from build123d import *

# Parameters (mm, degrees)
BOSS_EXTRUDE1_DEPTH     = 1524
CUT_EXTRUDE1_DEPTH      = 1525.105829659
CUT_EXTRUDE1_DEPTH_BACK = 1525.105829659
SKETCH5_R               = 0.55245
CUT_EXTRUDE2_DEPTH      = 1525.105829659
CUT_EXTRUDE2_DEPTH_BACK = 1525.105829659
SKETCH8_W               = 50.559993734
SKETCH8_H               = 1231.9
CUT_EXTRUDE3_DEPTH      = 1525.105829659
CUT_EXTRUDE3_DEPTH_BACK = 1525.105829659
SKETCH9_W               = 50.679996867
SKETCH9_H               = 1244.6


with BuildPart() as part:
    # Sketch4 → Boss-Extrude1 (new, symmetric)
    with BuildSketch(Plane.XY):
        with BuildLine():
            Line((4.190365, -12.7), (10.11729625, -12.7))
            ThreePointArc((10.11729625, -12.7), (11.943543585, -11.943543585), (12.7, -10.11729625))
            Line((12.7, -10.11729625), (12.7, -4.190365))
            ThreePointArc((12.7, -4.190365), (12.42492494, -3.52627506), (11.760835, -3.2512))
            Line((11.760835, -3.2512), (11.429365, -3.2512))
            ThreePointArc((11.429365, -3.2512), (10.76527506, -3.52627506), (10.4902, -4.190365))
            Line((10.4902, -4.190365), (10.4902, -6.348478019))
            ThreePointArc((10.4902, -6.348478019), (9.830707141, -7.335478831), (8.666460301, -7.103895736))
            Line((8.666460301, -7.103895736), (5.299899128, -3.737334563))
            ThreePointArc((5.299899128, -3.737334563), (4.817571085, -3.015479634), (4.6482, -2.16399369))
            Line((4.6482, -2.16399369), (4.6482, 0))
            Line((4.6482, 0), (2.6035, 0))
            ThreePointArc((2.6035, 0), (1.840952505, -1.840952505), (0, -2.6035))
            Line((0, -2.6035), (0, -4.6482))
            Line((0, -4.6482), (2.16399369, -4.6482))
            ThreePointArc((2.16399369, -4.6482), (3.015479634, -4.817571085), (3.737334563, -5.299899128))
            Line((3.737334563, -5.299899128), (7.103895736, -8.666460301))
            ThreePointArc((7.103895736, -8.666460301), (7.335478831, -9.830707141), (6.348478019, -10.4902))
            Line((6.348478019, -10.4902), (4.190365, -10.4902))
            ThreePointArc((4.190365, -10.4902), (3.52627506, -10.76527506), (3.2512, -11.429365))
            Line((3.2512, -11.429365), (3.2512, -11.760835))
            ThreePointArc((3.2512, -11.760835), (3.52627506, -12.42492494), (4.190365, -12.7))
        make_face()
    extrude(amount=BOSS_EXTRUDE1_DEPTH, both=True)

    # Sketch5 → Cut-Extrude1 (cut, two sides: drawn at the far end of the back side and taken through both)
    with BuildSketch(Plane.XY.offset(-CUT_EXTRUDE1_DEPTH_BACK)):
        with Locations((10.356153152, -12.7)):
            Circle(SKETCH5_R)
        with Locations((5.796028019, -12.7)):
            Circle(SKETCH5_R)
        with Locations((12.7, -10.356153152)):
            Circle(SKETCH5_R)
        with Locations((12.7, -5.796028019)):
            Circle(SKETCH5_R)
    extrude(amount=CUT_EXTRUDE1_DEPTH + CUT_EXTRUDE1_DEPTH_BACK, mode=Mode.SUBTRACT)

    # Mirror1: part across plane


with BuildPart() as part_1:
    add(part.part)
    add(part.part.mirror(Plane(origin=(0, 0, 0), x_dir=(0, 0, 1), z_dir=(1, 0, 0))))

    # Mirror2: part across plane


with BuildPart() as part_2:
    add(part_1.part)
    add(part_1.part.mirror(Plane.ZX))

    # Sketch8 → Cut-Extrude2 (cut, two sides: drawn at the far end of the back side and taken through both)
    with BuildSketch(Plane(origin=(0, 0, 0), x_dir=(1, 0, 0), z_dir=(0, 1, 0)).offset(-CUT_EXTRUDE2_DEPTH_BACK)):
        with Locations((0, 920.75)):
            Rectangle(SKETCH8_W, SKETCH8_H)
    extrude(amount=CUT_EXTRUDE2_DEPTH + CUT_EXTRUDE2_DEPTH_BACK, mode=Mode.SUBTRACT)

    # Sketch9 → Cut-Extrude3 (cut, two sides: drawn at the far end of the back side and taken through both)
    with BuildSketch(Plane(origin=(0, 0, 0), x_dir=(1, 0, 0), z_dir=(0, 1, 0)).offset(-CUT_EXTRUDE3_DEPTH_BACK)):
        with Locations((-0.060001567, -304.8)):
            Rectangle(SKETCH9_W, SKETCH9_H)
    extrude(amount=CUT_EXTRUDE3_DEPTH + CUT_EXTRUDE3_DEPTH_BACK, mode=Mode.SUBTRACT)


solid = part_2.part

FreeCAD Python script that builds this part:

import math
import FreeCAD as App
import Part
import Sketcher
Q = App.Units.Quantity

doc = App.newDocument("Part")
body = doc.addObject("PartDesign::Body", "Body")

# Sketch on XY plane
sketch1 = body.newObject("Sketcher::SketchObject", "Sketch")
sketch1.AttachmentSupport = (doc.getObject("XY_Plane"), [""])
sketch1.MapMode = "FlatFace"
sketch1.addGeometry(Part.LineSegment(App.Vector(4.19, -12.7, 0), App.Vector(10.12, -12.7, 0)), False)
sketch1.addGeometry(Part.ArcOfCircle(Part.Circle(App.Vector(10.12, -10.12, 0), App.Vector(0, 0, 1), 2.58), math.radians(-90), math.radians(0)), False)
sketch1.addGeometry(Part.LineSegment(App.Vector(12.7, -10.12, 0), App.Vector(12.7, -4.19, 0)), False)
sketch1.addGeometry(Part.ArcOfCircle(Part.Circle(App.Vector(11.76, -4.19, 0), App.Vector(0, 0, 1), 0.94), math.radians(0), math.radians(90)), False)
sketch1.addGeometry(Part.LineSegment(App.Vector(11.76, -3.25, 0), App.Vector(11.43, -3.25, 0)), False)
sketch1.addGeometry(Part.ArcOfCircle(Part.Circle(App.Vector(11.43, -4.19, 0), App.Vector(0, 0, 1), 0.94), math.radians(90), math.radians(180)), False)
sketch1.addGeometry(Part.LineSegment(App.Vector(10.49, -4.19, 0), App.Vector(10.49, -6.35, 0)), False)
sketch1.addGeometry(Part.ArcOfCircle(Part.Circle(App.Vector(9.42, -6.35, 0), App.Vector(0, 0, 1), 1.07), math.radians(-135), math.radians(0)), False)
sketch1.addGeometry(Part.LineSegment(App.Vector(8.67, -7.1, 0), App.Vector(5.3, -3.74, 0)), False)
sketch1.addGeometry(Part.ArcOfCircle(Part.Circle(App.Vector(6.87, -2.16, 0), App.Vector(0, 0, 1), 2.23), math.radians(-180), math.radians(-135)), False)
sketch1.addGeometry(Part.LineSegment(App.Vector(4.65, -2.16, 0), App.Vector(4.65, 0, 0)), False)
sketch1.addGeometry(Part.LineSegment(App.Vector(4.65, 0, 0), App.Vector(2.6, 0, 0)), False)
sketch1.addGeometry(Part.ArcOfCircle(Part.Circle(App.Vector(0, 0, 0), App.Vector(0, 0, 1), 2.6), math.radians(-90), math.radians(0)), False)
sketch1.addGeometry(Part.LineSegment(App.Vector(0, -2.6, 0), App.Vector(0, -4.65, 0)), False)
sketch1.addGeometry(Part.LineSegment(App.Vector(0, -4.65, 0), App.Vector(2.16, -4.65, 0)), False)
sketch1.addGeometry(Part.ArcOfCircle(Part.Circle(App.Vector(2.16, -6.87, 0), App.Vector(0, 0, 1), 2.23), math.radians(45), math.radians(90)), False)
sketch1.addGeometry(Part.LineSegment(App.Vector(3.74, -5.3, 0), App.Vector(7.1, -8.67, 0)), False)
sketch1.addGeometry(Part.ArcOfCircle(Part.Circle(App.Vector(6.35, -9.42, 0), App.Vector(0, 0, 1), 1.07), math.radians(-90), math.radians(45)), False)
sketch1.addGeometry(Part.LineSegment(App.Vector(6.35, -10.49, 0), App.Vector(4.19, -10.49, 0)), False)
sketch1.addGeometry(Part.ArcOfCircle(Part.Circle(App.Vector(4.19, -11.43, 0), App.Vector(0, 0, 1), 0.94), math.radians(90), math.radians(180)), False)
sketch1.addGeometry(Part.LineSegment(App.Vector(3.25, -11.43, 0), App.Vector(3.25, -11.76, 0)), False)
sketch1.addGeometry(Part.ArcOfCircle(Part.Circle(App.Vector(4.19, -11.76, 0), App.Vector(0, 0, 1), 0.94), math.radians(-180), math.radians(-90)), False)
sketch1.addConstraint(Sketcher.Constraint("Tangent", 0, 2, 1, 1))
sketch1.addConstraint(Sketcher.Constraint("Tangent", 1, 2, 2, 1))
sketch1.addConstraint(Sketcher.Constraint("Tangent", 2, 2, 3, 1))
sketch1.addConstraint(Sketcher.Constraint("Tangent", 3, 2, 4, 1))
sketch1.addConstraint(Sketcher.Constraint("Tangent", 4, 2, 5, 1))
sketch1.addConstraint(Sketcher.Constraint("Tangent", 5, 2, 6, 1))
sketch1.addConstraint(Sketcher.Constraint("Tangent", 6, 2, 7, 2))
sketch1.addConstraint(Sketcher.Constraint("Tangent", 7, 1, 8, 1))
sketch1.addConstraint(Sketcher.Constraint("Tangent", 8, 2, 9, 2))
sketch1.addConstraint(Sketcher.Constraint("Tangent", 9, 1, 10, 1))
sketch1.addConstraint(Sketcher.Constraint("Coincident", 10, 2, 11, 1))
sketch1.addConstraint(Sketcher.Constraint("Coincident", 11, 2, 12, 2))
sketch1.addConstraint(Sketcher.Constraint("Coincident", 12, 1, 13, 1))
sketch1.addConstraint(Sketcher.Constraint("Coincident", 13, 2, 14, 1))
sketch1.addConstraint(Sketcher.Constraint("Tangent", 14, 2, 15, 2))
sketch1.addConstraint(Sketcher.Constraint("Tangent", 15, 1, 16, 1))
sketch1.addConstraint(Sketcher.Constraint("Tangent", 16, 2, 17, 2))
sketch1.addConstraint(Sketcher.Constraint("Tangent", 17, 1, 18, 1))
sketch1.addConstraint(Sketcher.Constraint("Tangent", 18, 2, 19, 1))
sketch1.addConstraint(Sketcher.Constraint("Tangent", 19, 2, 20, 1))
sketch1.addConstraint(Sketcher.Constraint("Tangent", 20, 2, 21, 1))
sketch1.addConstraint(Sketcher.Constraint("Tangent", 21, 2, 0, 1))
sketch1.addConstraint(Sketcher.Constraint("Horizontal", 0))
sketch1.addConstraint(Sketcher.Constraint("Vertical", 2))
sketch1.addConstraint(Sketcher.Constraint("Horizontal", 4))
sketch1.addConstraint(Sketcher.Constraint("Vertical", 6))
sketch1.addConstraint(Sketcher.Constraint("Vertical", 10))
sketch1.addConstraint(Sketcher.Constraint("Horizontal", 11))
sketch1.addConstraint(Sketcher.Constraint("Vertical", 13))
sketch1.addConstraint(Sketcher.Constraint("Horizontal", 14))
sketch1.addConstraint(Sketcher.Constraint("Horizontal", 18))
sketch1.addConstraint(Sketcher.Constraint("Vertical", 20))
sketch1.addConstraint(Sketcher.Constraint("Coincident", 12, 3, -1, 1))
sketch1.addConstraint(Sketcher.Constraint("Equal", 3, 5))
sketch1.addConstraint(Sketcher.Constraint("Equal", 9, 15))
sketch1.addConstraint(Sketcher.Constraint("Equal", 7, 17))
sketch1.addConstraint(Sketcher.Constraint("Equal", 5, 19))
sketch1.addConstraint(Sketcher.Constraint("Equal", 19, 21))
sketch1.addConstraint(Sketcher.Constraint("PointOnObject", 10, 2, -1))
sketch1.addConstraint(Sketcher.Constraint("PointOnObject", 12, 1, -2))
sketch1.addConstraint(Sketcher.Constraint("Parallel", 8, 16))
sketch1.addConstraint(Sketcher.Constraint("Equal", 0, 2))
sketch1.addConstraint(Sketcher.Constraint("Equal", 18, 6))
sketch1.addConstraint(Sketcher.Constraint("Equal", 14, 10))
sketch1.addConstraint(Sketcher.Constraint("Equal", 11, 13))
sketch1.addConstraint(Sketcher.Constraint("Equal", 4, 20))
sketch1.addConstraint(Sketcher.Constraint("Equal", 8, 16))
sketch1.addConstraint(Sketcher.Constraint("DistanceY", 0, 2, -1, 1, Q("0.5 in")))
sketch1.addConstraint(Sketcher.Constraint("Radius", 9, Q("0.0876 in")))
sketch1.addConstraint(Sketcher.Constraint("Radius", 12, Q("0.1025 in")))
sketch1.addConstraint(Sketcher.Constraint("DistanceX", 9, 1, 5, 2, Q("0.23 in")))
sketch1.addConstraint(Sketcher.Constraint("DistanceX", 11, 2, 11, 1, Q("0.0805 in")))
sketch1.addConstraint(Sketcher.Constraint("DistanceY", 3, 2, -1, 1, Q("0.128 in")))
sketch1.addConstraint(Sketcher.Constraint("Radius", 7, Q("1.068322 mm")))
sketch1.addConstraint(Sketcher.Constraint("DistanceX", 17, 3, 7, 3, Q("0.121 in")))
sketch1.addConstraint(Sketcher.Constraint("Radius", 1, Q("2.582704 mm")))
sketch1.addConstraint(Sketcher.Constraint("Radius", 3, Q("0.939165 mm")))
pad1 = body.newObject("PartDesign::Pad", "Pad")
pad1.Profile = sketch1
pad1.Length = Q("120 in")
pad1.Midplane = True

# Sketch on XY plane
sketch2 = body.newObject("Sketcher::SketchObject", "Sketch001")
sketch2.AttachmentSupport = (doc.getObject("XY_Plane"), [""])
sketch2.MapMode = "FlatFace"
sketch2.addGeometry(Part.Circle(App.Vector(10.4, -12.7, 0), App.Vector(0, 0, 1), 0.6), False)
sketch2.addGeometry(Part.Circle(App.Vector(5.8, -12.7, 0), App.Vector(0, 0, 1), 0.6), False)
sketch2.addGeometry(Part.Circle(App.Vector(12.7, -10.4, 0), App.Vector(0, 0, 1), 0.6), False)
sketch2.addGeometry(Part.Circle(App.Vector(12.7, -5.8, 0), App.Vector(0, 0, 1), 0.6), False)
sketch2.addConstraint(Sketcher.Constraint("Equal", 0, 1))
sketch2.addConstraint(Sketcher.Constraint("Equal", 1, 2))
sketch2.addConstraint(Sketcher.Constraint("Equal", 2, 3))
sketch2.addConstraint(Sketcher.Constraint("Horizontal", 0, 3, 1, 3))
sketch2.addConstraint(Sketcher.Constraint("Vertical", 2, 3, 3, 3))
sketch2.addConstraint(Sketcher.Constraint("Diameter", 0, Q("0.0435 in")))
sketch2.addConstraint(Sketcher.Constraint("DistanceY", 0, 3, -1, 1, Q("0.5 in")))
sketch2.addConstraint(Sketcher.Constraint("DistanceX", -1, 1, 2, 3, Q("0.5 in")))
sketch2.addConstraint(Sketcher.Constraint("DistanceX", -1, 1, 1, 3, Q("5.796028 mm")))
sketch2.addConstraint(Sketcher.Constraint("DistanceY", 3, 3, -1, 1, Q("5.796028 mm")))
sketch2.addConstraint(Sketcher.Constraint("DistanceX", -1, 1, 0, 3, Q("10.356153 mm")))
sketch2.addConstraint(Sketcher.Constraint("DistanceY", 2, 3, -1, 1, Q("10.356153 mm")))
pocket1 = body.newObject("PartDesign::Pocket", "Pocket")
pocket1.Profile = sketch2
pocket1.Type = "ThroughAll"
pocket1.Midplane = True
body2 = doc.addObject("PartDesign::Body", "Body001")
doc.recompute()

body2.BaseFeature = body
doc.recompute()

mirroring = doc.addObject("Part::Mirroring", "Mirroring")
mirroring.Source = body
mirroring.Base = App.Vector(0, 0, 0)
mirroring.Normal = App.Vector(1, 0, 0)
body3 = doc.addObject("PartDesign::Body", "Body002")
body3.BaseFeature = mirroring
boolean = body2.newObject("PartDesign::Boolean", "Boolean")
boolean.Type = "Fuse"
boolean.addObjects([body3])
doc.recompute()
body4 = doc.addObject("PartDesign::Body", "Body003")
doc.recompute()

body4.BaseFeature = body2
doc.recompute()

mirroring2 = doc.addObject("Part::Mirroring", "Mirroring001")
mirroring2.Source = body2
mirroring2.Base = App.Vector(0, 0, 0)
mirroring2.Normal = App.Vector(0, 1, 0)
body5 = doc.addObject("PartDesign::Body", "Body004")
body5.BaseFeature = mirroring2
boolean2 = body4.newObject("PartDesign::Boolean", "Boolean001")
boolean2.Type = "Fuse"
boolean2.addObjects([body5])
doc.recompute()

# Sketch on XZ plane
sketch3 = body4.newObject("Sketcher::SketchObject", "Sketch002")
sketch3.AttachmentSupport = (doc.getObject("XZ_Plane003"), [""])
sketch3.MapMode = "FlatFace"
sketch3.addGeometry(Part.LineSegment(App.Vector(-25, -1537, 0), App.Vector(-25, -305, 0)), False)
sketch3.addGeometry(Part.LineSegment(App.Vector(-25, -305, 0), App.Vector(25, -305, 0)), False)
sketch3.addGeometry(Part.LineSegment(App.Vector(25, -305, 0), App.Vector(25, -1537, 0)), False)
sketch3.addGeometry(Part.LineSegment(App.Vector(25, -1537, 0), App.Vector(-25, -1537, 0)), False)
sketch3.addConstraint(Sketcher.Constraint("Coincident", 0, 2, 1, 1))
sketch3.addConstraint(Sketcher.Constraint("Coincident", 1, 2, 2, 1))
sketch3.addConstraint(Sketcher.Constraint("Coincident", 2, 2, 3, 1))
sketch3.addConstraint(Sketcher.Constraint("Coincident", 3, 2, 0, 1))
sketch3.addConstraint(Sketcher.Constraint("Vertical", 0))
sketch3.addConstraint(Sketcher.Constraint("Horizontal", 1))
sketch3.addConstraint(Sketcher.Constraint("Vertical", 2))
sketch3.addConstraint(Sketcher.Constraint("Horizontal", 3))
sketch3.addConstraint(Sketcher.Constraint("DistanceY", 0, 1, 0, 2, Q("48.5 in")))
sketch3.addConstraint(Sketcher.Constraint("DistanceY", 0, 2, -1, 1, Q("12 in")))
sketch3.addConstraint(Sketcher.Constraint("DistanceX", 1, 1, 1, 2, Q("50.559994 mm")))
sketch3.addConstraint(Sketcher.Constraint("DistanceX", 0, 2, -1, 1, Q("25.279997 mm")))
pocket2 = body4.newObject("PartDesign::Pocket", "Pocket001")
pocket2.Profile = sketch3
pocket2.Type = "ThroughAll"
pocket2.Midplane = True

# Sketch on XZ plane
sketch4 = body4.newObject("Sketcher::SketchObject", "Sketch003")
sketch4.AttachmentSupport = (doc.getObject("XZ_Plane003"), [""])
sketch4.MapMode = "FlatFace"
sketch4.addGeometry(Part.LineSegment(App.Vector(-25, -318, 0), App.Vector(-25, 927, 0)), False)
sketch4.addGeometry(Part.LineSegment(App.Vector(-25, 927, 0), App.Vector(25, 927, 0)), False)
sketch4.addGeometry(Part.LineSegment(App.Vector(25, 927, 0), App.Vector(25, -318, 0)), False)
sketch4.addGeometry(Part.LineSegment(App.Vector(25, -318, 0), App.Vector(-25, -318, 0)), False)
sketch4.addConstraint(Sketcher.Constraint("Coincident", 0, 2, 1, 1))
sketch4.addConstraint(Sketcher.Constraint("Coincident", 1, 2, 2, 1))
sketch4.addConstraint(Sketcher.Constraint("Coincident", 2, 2, 3, 1))
sketch4.addConstraint(Sketcher.Constraint("Coincident", 3, 2, 0, 1))
sketch4.addConstraint(Sketcher.Constraint("Vertical", 0))
sketch4.addConstraint(Sketcher.Constraint("Horizontal", 1))
sketch4.addConstraint(Sketcher.Constraint("Vertical", 2))
sketch4.addConstraint(Sketcher.Constraint("Horizontal", 3))
sketch4.addConstraint(Sketcher.Constraint("DistanceY", 0, 1, 0, 2, Q("49 in")))
sketch4.addConstraint(Sketcher.Constraint("DistanceX", 0, 2, -1, 1, Q("1 in")))
sketch4.addConstraint(Sketcher.Constraint("DistanceY", -1, 1, 0, 2, Q("36.5 in")))
sketch4.addConstraint(Sketcher.Constraint("DistanceX", 1, 1, 1, 2, Q("50.679997 mm")))
pocket3 = body4.newObject("PartDesign::Pocket", "Pocket002")
pocket3.Profile = sketch4
pocket3.Type = "ThroughAll"
pocket3.Midplane = True
mirroring.Visibility = False
mirroring2.Visibility = False

doc.recompute()
